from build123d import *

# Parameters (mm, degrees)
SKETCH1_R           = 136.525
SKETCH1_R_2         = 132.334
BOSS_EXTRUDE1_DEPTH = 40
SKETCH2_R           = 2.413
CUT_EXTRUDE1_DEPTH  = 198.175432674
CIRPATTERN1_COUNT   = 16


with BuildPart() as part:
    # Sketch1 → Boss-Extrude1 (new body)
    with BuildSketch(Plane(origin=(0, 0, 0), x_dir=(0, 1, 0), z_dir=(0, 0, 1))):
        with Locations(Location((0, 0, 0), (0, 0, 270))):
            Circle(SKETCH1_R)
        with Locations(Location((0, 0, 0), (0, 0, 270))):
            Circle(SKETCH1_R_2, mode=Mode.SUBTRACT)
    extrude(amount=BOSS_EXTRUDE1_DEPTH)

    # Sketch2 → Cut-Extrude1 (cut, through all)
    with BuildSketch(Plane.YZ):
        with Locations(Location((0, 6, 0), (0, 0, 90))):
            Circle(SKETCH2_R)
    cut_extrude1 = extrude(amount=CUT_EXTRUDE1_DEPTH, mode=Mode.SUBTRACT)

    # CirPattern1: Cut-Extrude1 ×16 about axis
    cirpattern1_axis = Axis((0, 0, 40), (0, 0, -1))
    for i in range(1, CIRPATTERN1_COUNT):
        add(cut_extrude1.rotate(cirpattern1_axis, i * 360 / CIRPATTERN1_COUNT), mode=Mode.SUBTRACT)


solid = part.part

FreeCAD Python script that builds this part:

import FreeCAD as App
import Part
import Sketcher
Q = App.Units.Quantity

doc = App.newDocument("Part")
body = doc.addObject("PartDesign::Body", "Body")

sketch1 = body.newObject("Sketcher::SketchObject", "Sketch")
sketch1.AttachmentSupport = (doc.getObject("XY_Plane"), [""])
sketch1.MapMode = "FlatFace"
sketch1.addGeometry(Part.Circle(App.Vector(0, 0, 0), App.Vector(0, 0, 1), 137), False)
sketch1.addGeometry(Part.Circle(App.Vector(0, 0, 0), App.Vector(0, 0, 1), 132), False)
sketch1.addConstraint(Sketcher.Constraint("Coincident", 0, 3, -1, 1))
sketch1.addConstraint(Sketcher.Constraint("Coincident", 1, 3, -1, 1))
sketch1.addConstraint(Sketcher.Constraint("Diameter", 0, Q("10.75 in")))
sketch1.addConstraint(Sketcher.Constraint("Diameter", 1, Q("10.42 in")))
pad1 = body.newObject("PartDesign::Pad", "Pad")
pad1.Profile = sketch1
pad1.Length = 40

sketch2 = body.newObject("Sketcher::SketchObject", "Sketch001")
sketch2.AttachmentSupport = (doc.getObject("YZ_Plane"), [""])
sketch2.MapMode = "FlatFace"
sketch2.addGeometry(Part.Circle(App.Vector(0, 6, 0), App.Vector(0, 0, 1), 2.4), False)
sketch2.addConstraint(Sketcher.Constraint("PointOnObject", 0, 3, -2))
sketch2.addConstraint(Sketcher.Constraint("Diameter", 0, Q("0.19 in")))
sketch2.addConstraint(Sketcher.Constraint("DistanceY", -1, 1, 0, 3, Q("6 mm")))
pocket1 = body.newObject("PartDesign::Pocket", "Pocket")
pocket1.Profile = sketch2
pocket1.Type = "ThroughAll"
pocket1.Reversed = True
doc.recompute()

polarpattern = body.newObject("PartDesign::PolarPattern", "PolarPattern")
polarpattern.Originals = [pocket1]
polarpattern.Axis = (doc.getObject("Z_Axis"), [""])
polarpattern.Angle = 360
polarpattern.Occurrences = 16
body.Tip = polarpattern

doc.recompute()
